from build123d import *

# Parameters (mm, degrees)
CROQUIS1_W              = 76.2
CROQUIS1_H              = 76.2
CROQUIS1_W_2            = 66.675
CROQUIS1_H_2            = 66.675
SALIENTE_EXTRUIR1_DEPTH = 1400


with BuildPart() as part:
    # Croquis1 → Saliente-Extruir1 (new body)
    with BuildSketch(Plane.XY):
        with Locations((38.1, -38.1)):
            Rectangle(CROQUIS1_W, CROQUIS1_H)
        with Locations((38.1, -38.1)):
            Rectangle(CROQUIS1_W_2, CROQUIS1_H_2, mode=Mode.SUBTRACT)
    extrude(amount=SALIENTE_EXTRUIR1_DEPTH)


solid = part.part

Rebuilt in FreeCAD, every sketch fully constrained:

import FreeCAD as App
import Part
import Sketcher

V = App.Vector
Q = App.Units.Quantity


def add_polygon(sketch, points):
    """Adds a closed chain of lines whose ends are joined by coincident constraints."""
    first, n = sketch.GeometryCount, len(points)
    for a, b in zip(points, points[1:] + points[:1]):
        sketch.addGeometry(Part.LineSegment(App.Vector(*a, 0), App.Vector(*b, 0)), False)
    for i in range(n):
        sketch.addConstraint(Sketcher.Constraint("Coincident", first + i, 2, first + (i + 1) % n, 1))

doc = App.newDocument("Part")
body = doc.addObject("PartDesign::Body", "Body")

# Sketch on XY plane
sketch1 = body.newObject("Sketcher::SketchObject", "Sketch")
sketch1.AttachmentSupport = (doc.getObject("XY_Plane"), [""])
sketch1.MapMode = "FlatFace"
add_polygon(sketch1, [(0, 0), (0, -76), (76, -76), (76, 0)])  # lines 0-3
add_polygon(sketch1, [(71, -71), (5, -71), (5, -5), (71, -5)])  # lines 4-7
sketch1.addConstraint([
    Sketcher.Constraint("Vertical", 0),
    Sketcher.Constraint("Horizontal", 1),
    Sketcher.Constraint("Vertical", 2),
    Sketcher.Constraint("Horizontal", 3),
    Sketcher.Constraint("Horizontal", 4),
    Sketcher.Constraint("Vertical", 5),
    Sketcher.Constraint("Horizontal", 6),
    Sketcher.Constraint("Vertical", 7),
    Sketcher.Constraint("Coincident", 3, 2, -1, 1),
    Sketcher.Constraint("Equal", 3, 0),
    Sketcher.Constraint("Equal", 6, 5),
    Sketcher.Constraint("DistanceX", 1, 1, 1, 2, Q("3 in")),
    Sketcher.Constraint("DistanceX", 4, 2, 4, 1, Q("2.625 in")),
    Sketcher.Constraint("DistanceX", -1, 1, 4, 2, Q("0.1875 in")),
    Sketcher.Constraint("DistanceY", 4, 2, -1, 1, Q("2.8125 in")),
])
pad1 = body.newObject("PartDesign::Pad", "Pad")
pad1.Profile = sketch1
pad1.Length = 1400

doc.recompute()
